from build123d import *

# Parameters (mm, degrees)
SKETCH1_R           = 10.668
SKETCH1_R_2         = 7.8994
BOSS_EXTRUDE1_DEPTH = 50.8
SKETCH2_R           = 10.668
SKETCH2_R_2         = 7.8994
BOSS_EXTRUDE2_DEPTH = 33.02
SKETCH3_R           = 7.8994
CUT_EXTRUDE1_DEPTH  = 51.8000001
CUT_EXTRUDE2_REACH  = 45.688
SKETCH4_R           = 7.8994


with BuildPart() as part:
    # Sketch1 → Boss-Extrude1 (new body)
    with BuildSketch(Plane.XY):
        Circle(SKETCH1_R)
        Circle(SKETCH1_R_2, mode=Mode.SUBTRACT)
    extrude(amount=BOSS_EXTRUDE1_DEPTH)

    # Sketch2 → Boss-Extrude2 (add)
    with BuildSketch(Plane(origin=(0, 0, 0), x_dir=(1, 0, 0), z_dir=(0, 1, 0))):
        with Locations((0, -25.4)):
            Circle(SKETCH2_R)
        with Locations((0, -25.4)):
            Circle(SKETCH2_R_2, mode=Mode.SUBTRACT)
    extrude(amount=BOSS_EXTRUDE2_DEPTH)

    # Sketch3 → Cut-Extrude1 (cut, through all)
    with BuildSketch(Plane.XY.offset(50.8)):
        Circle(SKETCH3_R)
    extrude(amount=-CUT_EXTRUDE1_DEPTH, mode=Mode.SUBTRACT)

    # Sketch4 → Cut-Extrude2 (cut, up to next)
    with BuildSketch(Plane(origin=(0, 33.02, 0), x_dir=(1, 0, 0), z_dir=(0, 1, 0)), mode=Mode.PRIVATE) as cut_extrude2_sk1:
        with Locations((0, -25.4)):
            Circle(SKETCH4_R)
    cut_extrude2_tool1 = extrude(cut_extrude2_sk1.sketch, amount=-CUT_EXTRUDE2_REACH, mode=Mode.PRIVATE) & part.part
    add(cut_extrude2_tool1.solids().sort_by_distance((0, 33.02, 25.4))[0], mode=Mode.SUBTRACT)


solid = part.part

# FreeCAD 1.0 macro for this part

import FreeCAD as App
import Part
import Sketcher
from FreeCAD import Vector
Q = App.Units.Quantity

doc = App.newDocument("Part")
params = doc.addObject("Spreadsheet::Sheet", "Params")
for row, (alias, value) in enumerate([
    ("sketch1_diameter", "0.84 in"),
    ("sketch1_diameter2", "0.622 in"),
    ("pad1_length", "2 in"),
    ("sketch2_diameter", "0.84 in"),
    ("sketch2_diameter2", "0.622 in"),
    ("pad2_length", "1.3 in"),
    ("sketch3_diameter", "0.622 in"),
    ("sketch4_diameter", "0.622 in"),
    ("pocket2_length", "1.3 in"),
], start=1):
    params.set(f"A{row}", alias)
    params.set(f"B{row}", "=" + value)
    params.setAlias(f"B{row}", alias)

body = doc.addObject("PartDesign::Body", "Body")

# Sketch on XY plane
sketch1 = doc.addObject("Sketcher::SketchObject", "Sketch")
body.addObject(sketch1)
sketch1.AttachmentSupport = (doc.XY_Plane, [""])
sketch1.MapMode = "FlatFace"
sketch1.addGeometry([
    Part.Circle(Vector(0, 0, 0), Vector(0, 0, 1), 11),
    Part.Circle(Vector(0, 0, 0), Vector(0, 0, 1), 8),
], False)
sketch1.addConstraint([
    Sketcher.Constraint("Coincident", 0, 3, -1, 1),
    Sketcher.Constraint("Coincident", 1, 3, -1, 1),
    Sketcher.Constraint("Diameter", 0, Q("0.84 in")),
    Sketcher.Constraint("Diameter", 1, Q("0.622 in")),
])
sketch1.setExpression("Constraints[2]", "Params.sketch1_diameter")
sketch1.setExpression("Constraints[3]", "Params.sketch1_diameter2")
pad1 = doc.addObject("PartDesign::Pad", "Pad")
body.addObject(pad1)
pad1.Profile = sketch1
pad1.setExpression("Length", "Params.pad1_length")

# Sketch on XZ plane
sketch2 = doc.addObject("Sketcher::SketchObject", "Sketch001")
body.addObject(sketch2)
sketch2.AttachmentSupport = (doc.XZ_Plane, [""])
sketch2.MapMode = "FlatFace"
sketch2.addGeometry([
    Part.Circle(Vector(0, 25, 0), Vector(0, 0, 1), 11),
    Part.Circle(Vector(0, 25, 0), Vector(0, 0, 1), 8),
], False)
sketch2.addConstraint([
    Sketcher.Constraint("Coincident", 1, 3, 0, 3),
    Sketcher.Constraint("PointOnObject", 0, 3, -2),
    Sketcher.Constraint("Diameter", 0, Q("0.84 in")),
    Sketcher.Constraint("Diameter", 1, Q("0.622 in")),
    Sketcher.Constraint("DistanceY", -1, 1, 0, 3, Q("1 in")),
])
sketch2.setExpression("Constraints[2]", "Params.sketch2_diameter")
sketch2.setExpression("Constraints[3]", "Params.sketch2_diameter2")
pad2 = doc.addObject("PartDesign::Pad", "Pad001")
body.addObject(pad2)
pad2.Profile = sketch2
pad2.setExpression("Length", "Params.pad2_length")
pad2.Reversed = True

# Sketch on XY plane
sketch3 = doc.addObject("Sketcher::SketchObject", "Sketch002")
body.addObject(sketch3)
sketch3.AttachmentSupport = (doc.XY_Plane, [""])
sketch3.MapMode = "FlatFace"
sketch3.AttachmentOffset = App.Placement(Vector(0, 0, 2 * 25.4), App.Rotation())
sketch3.addGeometry(Part.Circle(Vector(0, 0, 0), Vector(0, 0, 1), 8), False)
sketch3.addConstraint([
    Sketcher.Constraint("Coincident", 0, 3, -1, 1),
    Sketcher.Constraint("Diameter", 0, Q("0.622 in")),
])
sketch3.setExpression("Constraints[1]", "Params.sketch3_diameter")
pocket1 = doc.addObject("PartDesign::Pocket", "Pocket")
body.addObject(pocket1)
pocket1.Profile = sketch3
pocket1.Type = "ThroughAll"

# Sketch on XZ plane
sketch4 = doc.addObject("Sketcher::SketchObject", "Sketch003")
body.addObject(sketch4)
sketch4.AttachmentSupport = (doc.XZ_Plane, [""])
sketch4.MapMode = "FlatFace"
sketch4.AttachmentOffset = App.Placement(Vector(0, 0, -1.3 * 25.4), App.Rotation())
sketch4.addGeometry(Part.Circle(Vector(0, 25, 0), Vector(0, 0, 1), 8), False)
sketch4.addConstraint([
    Sketcher.Constraint("PointOnObject", 0, 3, -2),
    Sketcher.Constraint("Diameter", 0, Q("0.622 in")),
    Sketcher.Constraint("DistanceY", -1, 1, 0, 3, Q("1 in")),
])
sketch4.setExpression("Constraints[1]", "Params.sketch4_diameter")
pocket2 = doc.addObject("PartDesign::Pocket", "Pocket001")
body.addObject(pocket2)
pocket2.Profile = sketch4
pocket2.setExpression("Length", "Params.pocket2_length")
pocket2.Reversed = True

doc.recompute()
